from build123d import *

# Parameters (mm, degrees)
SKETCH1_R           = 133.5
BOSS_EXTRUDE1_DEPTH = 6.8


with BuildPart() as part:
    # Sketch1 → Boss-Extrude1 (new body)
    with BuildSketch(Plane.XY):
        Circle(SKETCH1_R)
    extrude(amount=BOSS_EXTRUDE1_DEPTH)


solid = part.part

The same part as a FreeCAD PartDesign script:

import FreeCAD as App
import Part
import Sketcher
from FreeCAD import Vector

doc = App.newDocument("Part")
params = doc.addObject("Spreadsheet::Sheet", "Params")
for row, (alias, value) in enumerate([
    ("sketch1_diameter", "267 mm"),
    ("pad1_length", "6.8 mm"),
], start=1):
    params.set(f"A{row}", alias)
    params.set(f"B{row}", "=" + value)
    params.setAlias(f"B{row}", alias)

body = doc.addObject("PartDesign::Body", "Body")

# Sketch on XY plane
sketch1 = body.newObject("Sketcher::SketchObject", "Sketch")
sketch1.AttachmentSupport = (doc.getObject("XY_Plane"), [""])
sketch1.MapMode = "FlatFace"
sketch1.addGeometry(Part.Circle(Vector(0, 0, 0), Vector(0, 0, 1), 134), False)
sketch1.addConstraint(Sketcher.Constraint("Coincident", 0, 3, -1, 1))
sketch1.addConstraint(Sketcher.Constraint("Diameter", 0, 267.0))
sketch1.setExpression("Constraints[1]", "Params.sketch1_diameter")
pad1 = body.newObject("PartDesign::Pad", "Pad")
pad1.Profile = sketch1
pad1.setExpression("Length", "Params.pad1_length")

doc.recompute()
